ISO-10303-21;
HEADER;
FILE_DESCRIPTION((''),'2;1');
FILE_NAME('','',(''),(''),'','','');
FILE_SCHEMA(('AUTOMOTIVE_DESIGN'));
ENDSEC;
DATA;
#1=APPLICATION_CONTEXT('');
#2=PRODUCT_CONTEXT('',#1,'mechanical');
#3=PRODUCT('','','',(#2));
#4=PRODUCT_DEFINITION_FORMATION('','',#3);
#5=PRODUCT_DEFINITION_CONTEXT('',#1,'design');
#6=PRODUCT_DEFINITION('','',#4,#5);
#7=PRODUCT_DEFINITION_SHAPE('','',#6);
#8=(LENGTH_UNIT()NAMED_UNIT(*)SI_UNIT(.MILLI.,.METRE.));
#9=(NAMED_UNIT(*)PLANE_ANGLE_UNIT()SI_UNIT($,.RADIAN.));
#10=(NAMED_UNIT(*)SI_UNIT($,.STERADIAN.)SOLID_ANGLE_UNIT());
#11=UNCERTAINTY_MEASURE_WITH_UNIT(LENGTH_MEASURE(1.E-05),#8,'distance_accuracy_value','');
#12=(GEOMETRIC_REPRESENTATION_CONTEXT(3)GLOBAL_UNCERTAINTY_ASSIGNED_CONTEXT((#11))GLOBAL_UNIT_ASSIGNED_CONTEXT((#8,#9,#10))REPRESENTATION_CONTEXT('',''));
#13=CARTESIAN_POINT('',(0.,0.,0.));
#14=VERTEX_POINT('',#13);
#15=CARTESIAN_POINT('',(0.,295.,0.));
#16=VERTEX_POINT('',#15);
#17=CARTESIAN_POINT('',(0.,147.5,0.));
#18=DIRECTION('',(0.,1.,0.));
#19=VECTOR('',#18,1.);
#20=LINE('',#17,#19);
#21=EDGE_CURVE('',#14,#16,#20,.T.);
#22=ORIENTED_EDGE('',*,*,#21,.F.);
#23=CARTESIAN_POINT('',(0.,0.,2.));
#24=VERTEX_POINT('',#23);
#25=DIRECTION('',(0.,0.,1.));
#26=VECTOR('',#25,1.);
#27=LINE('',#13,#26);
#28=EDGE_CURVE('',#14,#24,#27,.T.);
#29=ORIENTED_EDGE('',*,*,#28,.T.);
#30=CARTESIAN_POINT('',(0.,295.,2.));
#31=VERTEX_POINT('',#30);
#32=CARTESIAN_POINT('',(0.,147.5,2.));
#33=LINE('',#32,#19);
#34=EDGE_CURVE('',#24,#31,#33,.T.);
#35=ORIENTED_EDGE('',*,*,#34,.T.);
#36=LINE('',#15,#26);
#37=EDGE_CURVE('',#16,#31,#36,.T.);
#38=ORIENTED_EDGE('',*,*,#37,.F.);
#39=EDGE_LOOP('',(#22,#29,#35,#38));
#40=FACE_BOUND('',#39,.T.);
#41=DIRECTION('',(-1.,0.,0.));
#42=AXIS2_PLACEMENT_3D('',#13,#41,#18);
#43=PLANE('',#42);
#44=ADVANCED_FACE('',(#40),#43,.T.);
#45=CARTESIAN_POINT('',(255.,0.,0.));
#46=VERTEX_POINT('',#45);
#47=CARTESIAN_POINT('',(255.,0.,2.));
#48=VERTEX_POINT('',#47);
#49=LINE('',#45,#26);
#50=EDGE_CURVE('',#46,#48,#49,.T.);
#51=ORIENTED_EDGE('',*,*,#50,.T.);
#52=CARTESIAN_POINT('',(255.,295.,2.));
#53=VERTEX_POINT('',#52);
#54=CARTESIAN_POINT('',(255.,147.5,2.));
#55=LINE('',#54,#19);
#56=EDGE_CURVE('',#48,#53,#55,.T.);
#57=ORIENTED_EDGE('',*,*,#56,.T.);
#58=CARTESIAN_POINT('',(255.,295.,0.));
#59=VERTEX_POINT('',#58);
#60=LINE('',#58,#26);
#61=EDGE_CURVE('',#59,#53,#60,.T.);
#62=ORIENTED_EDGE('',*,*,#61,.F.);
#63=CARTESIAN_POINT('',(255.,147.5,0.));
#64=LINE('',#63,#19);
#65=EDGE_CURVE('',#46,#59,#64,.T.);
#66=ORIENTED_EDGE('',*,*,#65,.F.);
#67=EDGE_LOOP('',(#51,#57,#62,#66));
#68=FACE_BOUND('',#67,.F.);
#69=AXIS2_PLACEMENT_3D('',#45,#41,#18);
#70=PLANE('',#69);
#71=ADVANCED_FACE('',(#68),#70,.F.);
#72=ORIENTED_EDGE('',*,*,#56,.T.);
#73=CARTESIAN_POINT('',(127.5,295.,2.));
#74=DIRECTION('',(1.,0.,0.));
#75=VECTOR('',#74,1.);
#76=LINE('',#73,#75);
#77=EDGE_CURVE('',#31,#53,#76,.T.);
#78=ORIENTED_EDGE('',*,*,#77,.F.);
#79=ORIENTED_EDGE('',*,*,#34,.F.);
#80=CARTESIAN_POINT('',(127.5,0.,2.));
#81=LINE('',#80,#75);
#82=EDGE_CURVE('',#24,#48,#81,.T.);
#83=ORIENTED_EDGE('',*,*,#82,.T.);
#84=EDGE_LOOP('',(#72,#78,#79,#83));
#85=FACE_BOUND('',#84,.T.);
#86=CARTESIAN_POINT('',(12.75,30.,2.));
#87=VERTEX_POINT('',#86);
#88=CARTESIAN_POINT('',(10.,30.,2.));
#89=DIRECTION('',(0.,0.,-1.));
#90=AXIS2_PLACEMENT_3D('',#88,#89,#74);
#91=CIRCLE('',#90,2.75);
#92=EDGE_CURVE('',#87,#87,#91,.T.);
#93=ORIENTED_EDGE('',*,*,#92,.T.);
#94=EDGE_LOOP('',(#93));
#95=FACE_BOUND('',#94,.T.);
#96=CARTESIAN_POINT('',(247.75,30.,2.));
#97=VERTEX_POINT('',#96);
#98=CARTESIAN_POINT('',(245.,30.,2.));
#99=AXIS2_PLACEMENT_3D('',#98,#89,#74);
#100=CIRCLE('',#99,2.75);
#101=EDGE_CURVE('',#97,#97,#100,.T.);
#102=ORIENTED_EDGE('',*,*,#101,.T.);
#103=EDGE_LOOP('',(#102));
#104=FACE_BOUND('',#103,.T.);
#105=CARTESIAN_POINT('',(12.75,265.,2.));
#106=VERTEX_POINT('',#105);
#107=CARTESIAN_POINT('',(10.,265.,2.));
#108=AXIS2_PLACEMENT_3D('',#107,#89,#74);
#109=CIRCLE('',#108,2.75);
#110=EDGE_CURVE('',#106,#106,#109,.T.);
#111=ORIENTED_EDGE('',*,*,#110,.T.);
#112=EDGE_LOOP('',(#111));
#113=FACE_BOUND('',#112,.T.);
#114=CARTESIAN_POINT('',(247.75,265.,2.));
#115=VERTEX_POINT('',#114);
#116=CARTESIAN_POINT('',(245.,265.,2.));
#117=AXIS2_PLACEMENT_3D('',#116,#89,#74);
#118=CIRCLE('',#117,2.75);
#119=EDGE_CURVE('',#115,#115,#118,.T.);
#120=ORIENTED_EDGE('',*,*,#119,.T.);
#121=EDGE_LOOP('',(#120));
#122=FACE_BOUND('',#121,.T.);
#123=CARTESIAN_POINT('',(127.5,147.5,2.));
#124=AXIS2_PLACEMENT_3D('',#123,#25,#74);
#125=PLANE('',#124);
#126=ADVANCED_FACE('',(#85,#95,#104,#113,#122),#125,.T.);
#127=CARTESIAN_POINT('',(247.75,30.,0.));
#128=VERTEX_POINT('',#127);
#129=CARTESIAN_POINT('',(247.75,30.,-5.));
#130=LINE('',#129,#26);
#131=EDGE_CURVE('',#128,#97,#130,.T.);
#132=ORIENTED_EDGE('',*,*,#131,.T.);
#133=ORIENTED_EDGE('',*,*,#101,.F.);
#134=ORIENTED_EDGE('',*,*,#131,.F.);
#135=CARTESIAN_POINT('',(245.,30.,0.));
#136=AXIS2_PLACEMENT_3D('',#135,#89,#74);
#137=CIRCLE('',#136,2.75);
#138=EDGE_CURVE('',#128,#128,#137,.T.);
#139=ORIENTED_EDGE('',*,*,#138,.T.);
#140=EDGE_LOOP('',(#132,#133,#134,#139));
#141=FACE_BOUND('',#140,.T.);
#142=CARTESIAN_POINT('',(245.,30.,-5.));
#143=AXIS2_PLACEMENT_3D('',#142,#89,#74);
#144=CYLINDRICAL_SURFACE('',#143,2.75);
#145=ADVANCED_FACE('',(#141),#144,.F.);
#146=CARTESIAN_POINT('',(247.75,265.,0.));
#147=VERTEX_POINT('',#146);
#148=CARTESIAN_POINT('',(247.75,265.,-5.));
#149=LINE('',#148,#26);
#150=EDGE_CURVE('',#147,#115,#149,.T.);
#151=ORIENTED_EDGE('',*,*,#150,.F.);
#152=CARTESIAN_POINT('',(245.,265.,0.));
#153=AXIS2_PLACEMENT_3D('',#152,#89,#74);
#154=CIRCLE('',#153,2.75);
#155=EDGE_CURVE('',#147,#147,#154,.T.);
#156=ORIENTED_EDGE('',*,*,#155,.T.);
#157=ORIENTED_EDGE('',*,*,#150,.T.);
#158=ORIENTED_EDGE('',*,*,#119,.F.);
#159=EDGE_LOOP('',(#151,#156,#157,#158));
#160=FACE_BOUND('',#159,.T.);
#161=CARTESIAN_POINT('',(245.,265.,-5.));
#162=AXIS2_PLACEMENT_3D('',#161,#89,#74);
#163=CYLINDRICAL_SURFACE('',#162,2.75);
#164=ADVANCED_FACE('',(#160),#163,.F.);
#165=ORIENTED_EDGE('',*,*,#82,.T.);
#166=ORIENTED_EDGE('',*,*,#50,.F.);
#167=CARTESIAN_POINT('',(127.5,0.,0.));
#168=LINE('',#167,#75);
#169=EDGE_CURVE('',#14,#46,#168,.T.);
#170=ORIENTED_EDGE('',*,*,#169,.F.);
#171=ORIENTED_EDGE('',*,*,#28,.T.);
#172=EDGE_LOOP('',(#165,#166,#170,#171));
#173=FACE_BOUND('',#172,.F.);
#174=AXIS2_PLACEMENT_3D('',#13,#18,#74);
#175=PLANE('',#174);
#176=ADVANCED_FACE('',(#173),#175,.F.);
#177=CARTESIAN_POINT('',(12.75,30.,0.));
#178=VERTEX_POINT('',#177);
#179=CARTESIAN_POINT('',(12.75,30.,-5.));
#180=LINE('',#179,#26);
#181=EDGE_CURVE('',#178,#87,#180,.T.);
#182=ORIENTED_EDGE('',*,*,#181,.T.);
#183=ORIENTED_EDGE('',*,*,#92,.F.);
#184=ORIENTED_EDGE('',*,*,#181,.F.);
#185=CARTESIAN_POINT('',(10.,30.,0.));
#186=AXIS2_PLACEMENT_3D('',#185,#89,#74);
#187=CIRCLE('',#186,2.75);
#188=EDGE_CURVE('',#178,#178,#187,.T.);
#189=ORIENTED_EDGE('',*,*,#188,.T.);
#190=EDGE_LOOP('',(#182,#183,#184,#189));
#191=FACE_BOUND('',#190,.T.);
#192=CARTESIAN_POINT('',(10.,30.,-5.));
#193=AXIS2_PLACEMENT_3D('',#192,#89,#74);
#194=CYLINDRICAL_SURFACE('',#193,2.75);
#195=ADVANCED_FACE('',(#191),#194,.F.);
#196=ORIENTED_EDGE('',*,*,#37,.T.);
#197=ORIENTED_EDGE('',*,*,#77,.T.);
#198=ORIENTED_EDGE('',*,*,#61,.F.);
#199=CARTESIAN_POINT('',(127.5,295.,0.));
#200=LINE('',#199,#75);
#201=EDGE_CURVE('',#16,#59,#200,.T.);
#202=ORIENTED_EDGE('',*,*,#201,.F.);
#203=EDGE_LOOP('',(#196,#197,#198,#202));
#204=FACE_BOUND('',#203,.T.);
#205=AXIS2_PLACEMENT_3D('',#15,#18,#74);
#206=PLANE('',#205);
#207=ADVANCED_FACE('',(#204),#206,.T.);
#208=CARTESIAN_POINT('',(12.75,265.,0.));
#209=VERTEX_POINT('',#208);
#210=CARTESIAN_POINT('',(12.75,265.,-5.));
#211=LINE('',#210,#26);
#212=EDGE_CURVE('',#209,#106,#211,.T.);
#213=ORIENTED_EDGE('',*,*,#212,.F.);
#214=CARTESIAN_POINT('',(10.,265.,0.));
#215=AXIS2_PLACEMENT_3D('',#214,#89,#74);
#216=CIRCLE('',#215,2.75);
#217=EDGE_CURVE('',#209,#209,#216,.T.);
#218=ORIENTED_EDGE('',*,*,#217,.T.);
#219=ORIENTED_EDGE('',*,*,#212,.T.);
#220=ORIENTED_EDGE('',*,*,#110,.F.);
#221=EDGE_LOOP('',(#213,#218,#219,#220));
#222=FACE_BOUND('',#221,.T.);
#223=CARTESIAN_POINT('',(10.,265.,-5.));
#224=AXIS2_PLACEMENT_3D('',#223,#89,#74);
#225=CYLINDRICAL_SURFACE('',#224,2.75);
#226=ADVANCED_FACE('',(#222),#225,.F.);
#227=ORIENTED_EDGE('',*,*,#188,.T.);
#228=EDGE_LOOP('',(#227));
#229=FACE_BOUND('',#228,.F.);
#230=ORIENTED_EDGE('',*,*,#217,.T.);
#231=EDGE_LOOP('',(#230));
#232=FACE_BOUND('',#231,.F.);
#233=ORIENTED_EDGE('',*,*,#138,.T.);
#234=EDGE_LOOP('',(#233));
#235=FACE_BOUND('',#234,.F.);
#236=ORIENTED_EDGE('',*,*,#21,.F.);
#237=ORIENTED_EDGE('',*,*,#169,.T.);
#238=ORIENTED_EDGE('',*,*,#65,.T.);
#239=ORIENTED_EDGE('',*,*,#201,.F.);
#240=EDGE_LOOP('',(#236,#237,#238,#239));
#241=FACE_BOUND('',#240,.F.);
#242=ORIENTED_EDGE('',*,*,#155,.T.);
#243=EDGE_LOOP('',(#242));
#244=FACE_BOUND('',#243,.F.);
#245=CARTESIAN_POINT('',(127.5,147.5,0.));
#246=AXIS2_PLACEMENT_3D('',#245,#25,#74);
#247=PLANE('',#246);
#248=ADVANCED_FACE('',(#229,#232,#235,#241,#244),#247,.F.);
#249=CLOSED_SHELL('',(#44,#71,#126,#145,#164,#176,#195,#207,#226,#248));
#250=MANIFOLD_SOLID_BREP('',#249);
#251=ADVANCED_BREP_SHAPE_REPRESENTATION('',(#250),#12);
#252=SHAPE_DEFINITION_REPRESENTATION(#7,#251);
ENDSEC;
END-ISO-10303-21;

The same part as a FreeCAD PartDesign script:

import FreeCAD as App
import Part
import Sketcher
Q = App.Units.Quantity


def add_polygon(sketch, points):
    """Adds a closed chain of lines whose ends are joined by coincident constraints."""
    first, n = sketch.GeometryCount, len(points)
    for a, b in zip(points, points[1:] + points[:1]):
        sketch.addGeometry(Part.LineSegment(App.Vector(*a, 0), App.Vector(*b, 0)), False)
    for i in range(n):
        sketch.addConstraint(Sketcher.Constraint("Coincident", first + i, 2, first + (i + 1) % n, 1))

doc = App.newDocument("Part")
body = doc.addObject("PartDesign::Body", "Body")

sketch1 = body.newObject("Sketcher::SketchObject", "Sketch")
sketch1.AttachmentSupport = (doc.getObject("XY_Plane"), [""])
sketch1.MapMode = "FlatFace"
sketch1.AttachmentOffset = App.Placement(App.Vector(0, 0, -5), App.Rotation())
sketch1.addGeometry(Part.Circle(App.Vector(245, 265, 0), App.Vector(0, 0, 1), 2.75), False)
sketch1.addConstraint(Sketcher.Constraint("Diameter", 0, Q("5.5 mm")))
sketch1.addConstraint(Sketcher.Constraint("DistanceX", -1, 1, 0, 3, Q("245 mm")))
sketch1.addConstraint(Sketcher.Constraint("DistanceY", -1, 1, 0, 3, Q("265 mm")))
pad1 = body.newObject("PartDesign::Pad", "Pad")
pad1.Profile = sketch1
pad1.Length = 10
body2 = doc.addObject("PartDesign::Body", "Body001")

sketch2 = body2.newObject("Sketcher::SketchObject", "Sketch001")
sketch2.AttachmentSupport = (doc.getObject("XY_Plane001"), [""])
sketch2.MapMode = "FlatFace"
sketch2.AttachmentOffset = App.Placement(App.Vector(0, 0, -5), App.Rotation())
sketch2.addGeometry(Part.Circle(App.Vector(245, 30, 0), App.Vector(0, 0, 1), 2.75), False)
sketch2.addConstraint(Sketcher.Constraint("Diameter", 0, Q("5.5 mm")))
sketch2.addConstraint(Sketcher.Constraint("DistanceX", -1, 1, 0, 3, Q("245 mm")))
sketch2.addConstraint(Sketcher.Constraint("DistanceY", -1, 1, 0, 3, Q("30 mm")))
pad2 = body2.newObject("PartDesign::Pad", "Pad001")
pad2.Profile = sketch2
pad2.Length = 10
body3 = doc.addObject("PartDesign::Body", "Body002")

sketch3 = body3.newObject("Sketcher::SketchObject", "Sketch002")
sketch3.AttachmentSupport = (doc.getObject("XY_Plane002"), [""])
sketch3.MapMode = "FlatFace"
sketch3.AttachmentOffset = App.Placement(App.Vector(0, 0, -5), App.Rotation())
sketch3.addGeometry(Part.Circle(App.Vector(10, 265, 0), App.Vector(0, 0, 1), 2.75), False)
sketch3.addConstraint(Sketcher.Constraint("Diameter", 0, Q("5.5 mm")))
sketch3.addConstraint(Sketcher.Constraint("DistanceX", -1, 1, 0, 3, Q("10 mm")))
sketch3.addConstraint(Sketcher.Constraint("DistanceY", -1, 1, 0, 3, Q("265 mm")))
pad3 = body3.newObject("PartDesign::Pad", "Pad002")
pad3.Profile = sketch3
pad3.Length = 10
body4 = doc.addObject("PartDesign::Body", "Body003")

sketch4 = body4.newObject("Sketcher::SketchObject", "Sketch003")
sketch4.AttachmentSupport = (doc.getObject("XY_Plane003"), [""])
sketch4.MapMode = "FlatFace"
sketch4.AttachmentOffset = App.Placement(App.Vector(0, 0, -5), App.Rotation())
sketch4.addGeometry(Part.Circle(App.Vector(10, 30, 0), App.Vector(0, 0, 1), 2.75), False)
sketch4.addConstraint(Sketcher.Constraint("Diameter", 0, Q("5.5 mm")))
sketch4.addConstraint(Sketcher.Constraint("DistanceX", -1, 1, 0, 3, Q("10 mm")))
sketch4.addConstraint(Sketcher.Constraint("DistanceY", -1, 1, 0, 3, Q("30 mm")))
pad4 = body4.newObject("PartDesign::Pad", "Pad003")
pad4.Profile = sketch4
pad4.Length = 10
body5 = doc.addObject("PartDesign::Body", "Body004")

sketch5 = body5.newObject("Sketcher::SketchObject", "Sketch004")
sketch5.AttachmentSupport = (doc.getObject("XY_Plane004"), [""])
sketch5.MapMode = "FlatFace"
add_polygon(sketch5, [(0, 295), (0, 0), (255, 0), (255, 295)])
sketch5.addConstraint(Sketcher.Constraint("Vertical", 0))
sketch5.addConstraint(Sketcher.Constraint("Horizontal", 1))
sketch5.addConstraint(Sketcher.Constraint("Vertical", 2))
sketch5.addConstraint(Sketcher.Constraint("Horizontal", 3))
sketch5.addConstraint(Sketcher.Constraint("Coincident", 0, 2, -1, 1))
sketch5.addConstraint(Sketcher.Constraint("DistanceX", 1, 1, 1, 2, Q("255 mm")))
sketch5.addConstraint(Sketcher.Constraint("DistanceY", 0, 2, 0, 1, Q("295 mm")))
pad5 = body5.newObject("PartDesign::Pad", "Pad004")
pad5.Profile = sketch5
pad5.Length = 2
doc.recompute()

boolean = body5.newObject("PartDesign::Boolean", "Boolean")
boolean.Type = "Cut"
boolean.addObjects([body4])
doc.recompute()

boolean2 = body5.newObject("PartDesign::Boolean", "Boolean001")
boolean2.Type = "Cut"
boolean2.addObjects([body3])
doc.recompute()

boolean3 = body5.newObject("PartDesign::Boolean", "Boolean002")
boolean3.Type = "Cut"
boolean3.addObjects([body2])
doc.recompute()

boolean4 = body5.newObject("PartDesign::Boolean", "Boolean003")
boolean4.Type = "Cut"
boolean4.addObjects([body])

doc.recompute()
